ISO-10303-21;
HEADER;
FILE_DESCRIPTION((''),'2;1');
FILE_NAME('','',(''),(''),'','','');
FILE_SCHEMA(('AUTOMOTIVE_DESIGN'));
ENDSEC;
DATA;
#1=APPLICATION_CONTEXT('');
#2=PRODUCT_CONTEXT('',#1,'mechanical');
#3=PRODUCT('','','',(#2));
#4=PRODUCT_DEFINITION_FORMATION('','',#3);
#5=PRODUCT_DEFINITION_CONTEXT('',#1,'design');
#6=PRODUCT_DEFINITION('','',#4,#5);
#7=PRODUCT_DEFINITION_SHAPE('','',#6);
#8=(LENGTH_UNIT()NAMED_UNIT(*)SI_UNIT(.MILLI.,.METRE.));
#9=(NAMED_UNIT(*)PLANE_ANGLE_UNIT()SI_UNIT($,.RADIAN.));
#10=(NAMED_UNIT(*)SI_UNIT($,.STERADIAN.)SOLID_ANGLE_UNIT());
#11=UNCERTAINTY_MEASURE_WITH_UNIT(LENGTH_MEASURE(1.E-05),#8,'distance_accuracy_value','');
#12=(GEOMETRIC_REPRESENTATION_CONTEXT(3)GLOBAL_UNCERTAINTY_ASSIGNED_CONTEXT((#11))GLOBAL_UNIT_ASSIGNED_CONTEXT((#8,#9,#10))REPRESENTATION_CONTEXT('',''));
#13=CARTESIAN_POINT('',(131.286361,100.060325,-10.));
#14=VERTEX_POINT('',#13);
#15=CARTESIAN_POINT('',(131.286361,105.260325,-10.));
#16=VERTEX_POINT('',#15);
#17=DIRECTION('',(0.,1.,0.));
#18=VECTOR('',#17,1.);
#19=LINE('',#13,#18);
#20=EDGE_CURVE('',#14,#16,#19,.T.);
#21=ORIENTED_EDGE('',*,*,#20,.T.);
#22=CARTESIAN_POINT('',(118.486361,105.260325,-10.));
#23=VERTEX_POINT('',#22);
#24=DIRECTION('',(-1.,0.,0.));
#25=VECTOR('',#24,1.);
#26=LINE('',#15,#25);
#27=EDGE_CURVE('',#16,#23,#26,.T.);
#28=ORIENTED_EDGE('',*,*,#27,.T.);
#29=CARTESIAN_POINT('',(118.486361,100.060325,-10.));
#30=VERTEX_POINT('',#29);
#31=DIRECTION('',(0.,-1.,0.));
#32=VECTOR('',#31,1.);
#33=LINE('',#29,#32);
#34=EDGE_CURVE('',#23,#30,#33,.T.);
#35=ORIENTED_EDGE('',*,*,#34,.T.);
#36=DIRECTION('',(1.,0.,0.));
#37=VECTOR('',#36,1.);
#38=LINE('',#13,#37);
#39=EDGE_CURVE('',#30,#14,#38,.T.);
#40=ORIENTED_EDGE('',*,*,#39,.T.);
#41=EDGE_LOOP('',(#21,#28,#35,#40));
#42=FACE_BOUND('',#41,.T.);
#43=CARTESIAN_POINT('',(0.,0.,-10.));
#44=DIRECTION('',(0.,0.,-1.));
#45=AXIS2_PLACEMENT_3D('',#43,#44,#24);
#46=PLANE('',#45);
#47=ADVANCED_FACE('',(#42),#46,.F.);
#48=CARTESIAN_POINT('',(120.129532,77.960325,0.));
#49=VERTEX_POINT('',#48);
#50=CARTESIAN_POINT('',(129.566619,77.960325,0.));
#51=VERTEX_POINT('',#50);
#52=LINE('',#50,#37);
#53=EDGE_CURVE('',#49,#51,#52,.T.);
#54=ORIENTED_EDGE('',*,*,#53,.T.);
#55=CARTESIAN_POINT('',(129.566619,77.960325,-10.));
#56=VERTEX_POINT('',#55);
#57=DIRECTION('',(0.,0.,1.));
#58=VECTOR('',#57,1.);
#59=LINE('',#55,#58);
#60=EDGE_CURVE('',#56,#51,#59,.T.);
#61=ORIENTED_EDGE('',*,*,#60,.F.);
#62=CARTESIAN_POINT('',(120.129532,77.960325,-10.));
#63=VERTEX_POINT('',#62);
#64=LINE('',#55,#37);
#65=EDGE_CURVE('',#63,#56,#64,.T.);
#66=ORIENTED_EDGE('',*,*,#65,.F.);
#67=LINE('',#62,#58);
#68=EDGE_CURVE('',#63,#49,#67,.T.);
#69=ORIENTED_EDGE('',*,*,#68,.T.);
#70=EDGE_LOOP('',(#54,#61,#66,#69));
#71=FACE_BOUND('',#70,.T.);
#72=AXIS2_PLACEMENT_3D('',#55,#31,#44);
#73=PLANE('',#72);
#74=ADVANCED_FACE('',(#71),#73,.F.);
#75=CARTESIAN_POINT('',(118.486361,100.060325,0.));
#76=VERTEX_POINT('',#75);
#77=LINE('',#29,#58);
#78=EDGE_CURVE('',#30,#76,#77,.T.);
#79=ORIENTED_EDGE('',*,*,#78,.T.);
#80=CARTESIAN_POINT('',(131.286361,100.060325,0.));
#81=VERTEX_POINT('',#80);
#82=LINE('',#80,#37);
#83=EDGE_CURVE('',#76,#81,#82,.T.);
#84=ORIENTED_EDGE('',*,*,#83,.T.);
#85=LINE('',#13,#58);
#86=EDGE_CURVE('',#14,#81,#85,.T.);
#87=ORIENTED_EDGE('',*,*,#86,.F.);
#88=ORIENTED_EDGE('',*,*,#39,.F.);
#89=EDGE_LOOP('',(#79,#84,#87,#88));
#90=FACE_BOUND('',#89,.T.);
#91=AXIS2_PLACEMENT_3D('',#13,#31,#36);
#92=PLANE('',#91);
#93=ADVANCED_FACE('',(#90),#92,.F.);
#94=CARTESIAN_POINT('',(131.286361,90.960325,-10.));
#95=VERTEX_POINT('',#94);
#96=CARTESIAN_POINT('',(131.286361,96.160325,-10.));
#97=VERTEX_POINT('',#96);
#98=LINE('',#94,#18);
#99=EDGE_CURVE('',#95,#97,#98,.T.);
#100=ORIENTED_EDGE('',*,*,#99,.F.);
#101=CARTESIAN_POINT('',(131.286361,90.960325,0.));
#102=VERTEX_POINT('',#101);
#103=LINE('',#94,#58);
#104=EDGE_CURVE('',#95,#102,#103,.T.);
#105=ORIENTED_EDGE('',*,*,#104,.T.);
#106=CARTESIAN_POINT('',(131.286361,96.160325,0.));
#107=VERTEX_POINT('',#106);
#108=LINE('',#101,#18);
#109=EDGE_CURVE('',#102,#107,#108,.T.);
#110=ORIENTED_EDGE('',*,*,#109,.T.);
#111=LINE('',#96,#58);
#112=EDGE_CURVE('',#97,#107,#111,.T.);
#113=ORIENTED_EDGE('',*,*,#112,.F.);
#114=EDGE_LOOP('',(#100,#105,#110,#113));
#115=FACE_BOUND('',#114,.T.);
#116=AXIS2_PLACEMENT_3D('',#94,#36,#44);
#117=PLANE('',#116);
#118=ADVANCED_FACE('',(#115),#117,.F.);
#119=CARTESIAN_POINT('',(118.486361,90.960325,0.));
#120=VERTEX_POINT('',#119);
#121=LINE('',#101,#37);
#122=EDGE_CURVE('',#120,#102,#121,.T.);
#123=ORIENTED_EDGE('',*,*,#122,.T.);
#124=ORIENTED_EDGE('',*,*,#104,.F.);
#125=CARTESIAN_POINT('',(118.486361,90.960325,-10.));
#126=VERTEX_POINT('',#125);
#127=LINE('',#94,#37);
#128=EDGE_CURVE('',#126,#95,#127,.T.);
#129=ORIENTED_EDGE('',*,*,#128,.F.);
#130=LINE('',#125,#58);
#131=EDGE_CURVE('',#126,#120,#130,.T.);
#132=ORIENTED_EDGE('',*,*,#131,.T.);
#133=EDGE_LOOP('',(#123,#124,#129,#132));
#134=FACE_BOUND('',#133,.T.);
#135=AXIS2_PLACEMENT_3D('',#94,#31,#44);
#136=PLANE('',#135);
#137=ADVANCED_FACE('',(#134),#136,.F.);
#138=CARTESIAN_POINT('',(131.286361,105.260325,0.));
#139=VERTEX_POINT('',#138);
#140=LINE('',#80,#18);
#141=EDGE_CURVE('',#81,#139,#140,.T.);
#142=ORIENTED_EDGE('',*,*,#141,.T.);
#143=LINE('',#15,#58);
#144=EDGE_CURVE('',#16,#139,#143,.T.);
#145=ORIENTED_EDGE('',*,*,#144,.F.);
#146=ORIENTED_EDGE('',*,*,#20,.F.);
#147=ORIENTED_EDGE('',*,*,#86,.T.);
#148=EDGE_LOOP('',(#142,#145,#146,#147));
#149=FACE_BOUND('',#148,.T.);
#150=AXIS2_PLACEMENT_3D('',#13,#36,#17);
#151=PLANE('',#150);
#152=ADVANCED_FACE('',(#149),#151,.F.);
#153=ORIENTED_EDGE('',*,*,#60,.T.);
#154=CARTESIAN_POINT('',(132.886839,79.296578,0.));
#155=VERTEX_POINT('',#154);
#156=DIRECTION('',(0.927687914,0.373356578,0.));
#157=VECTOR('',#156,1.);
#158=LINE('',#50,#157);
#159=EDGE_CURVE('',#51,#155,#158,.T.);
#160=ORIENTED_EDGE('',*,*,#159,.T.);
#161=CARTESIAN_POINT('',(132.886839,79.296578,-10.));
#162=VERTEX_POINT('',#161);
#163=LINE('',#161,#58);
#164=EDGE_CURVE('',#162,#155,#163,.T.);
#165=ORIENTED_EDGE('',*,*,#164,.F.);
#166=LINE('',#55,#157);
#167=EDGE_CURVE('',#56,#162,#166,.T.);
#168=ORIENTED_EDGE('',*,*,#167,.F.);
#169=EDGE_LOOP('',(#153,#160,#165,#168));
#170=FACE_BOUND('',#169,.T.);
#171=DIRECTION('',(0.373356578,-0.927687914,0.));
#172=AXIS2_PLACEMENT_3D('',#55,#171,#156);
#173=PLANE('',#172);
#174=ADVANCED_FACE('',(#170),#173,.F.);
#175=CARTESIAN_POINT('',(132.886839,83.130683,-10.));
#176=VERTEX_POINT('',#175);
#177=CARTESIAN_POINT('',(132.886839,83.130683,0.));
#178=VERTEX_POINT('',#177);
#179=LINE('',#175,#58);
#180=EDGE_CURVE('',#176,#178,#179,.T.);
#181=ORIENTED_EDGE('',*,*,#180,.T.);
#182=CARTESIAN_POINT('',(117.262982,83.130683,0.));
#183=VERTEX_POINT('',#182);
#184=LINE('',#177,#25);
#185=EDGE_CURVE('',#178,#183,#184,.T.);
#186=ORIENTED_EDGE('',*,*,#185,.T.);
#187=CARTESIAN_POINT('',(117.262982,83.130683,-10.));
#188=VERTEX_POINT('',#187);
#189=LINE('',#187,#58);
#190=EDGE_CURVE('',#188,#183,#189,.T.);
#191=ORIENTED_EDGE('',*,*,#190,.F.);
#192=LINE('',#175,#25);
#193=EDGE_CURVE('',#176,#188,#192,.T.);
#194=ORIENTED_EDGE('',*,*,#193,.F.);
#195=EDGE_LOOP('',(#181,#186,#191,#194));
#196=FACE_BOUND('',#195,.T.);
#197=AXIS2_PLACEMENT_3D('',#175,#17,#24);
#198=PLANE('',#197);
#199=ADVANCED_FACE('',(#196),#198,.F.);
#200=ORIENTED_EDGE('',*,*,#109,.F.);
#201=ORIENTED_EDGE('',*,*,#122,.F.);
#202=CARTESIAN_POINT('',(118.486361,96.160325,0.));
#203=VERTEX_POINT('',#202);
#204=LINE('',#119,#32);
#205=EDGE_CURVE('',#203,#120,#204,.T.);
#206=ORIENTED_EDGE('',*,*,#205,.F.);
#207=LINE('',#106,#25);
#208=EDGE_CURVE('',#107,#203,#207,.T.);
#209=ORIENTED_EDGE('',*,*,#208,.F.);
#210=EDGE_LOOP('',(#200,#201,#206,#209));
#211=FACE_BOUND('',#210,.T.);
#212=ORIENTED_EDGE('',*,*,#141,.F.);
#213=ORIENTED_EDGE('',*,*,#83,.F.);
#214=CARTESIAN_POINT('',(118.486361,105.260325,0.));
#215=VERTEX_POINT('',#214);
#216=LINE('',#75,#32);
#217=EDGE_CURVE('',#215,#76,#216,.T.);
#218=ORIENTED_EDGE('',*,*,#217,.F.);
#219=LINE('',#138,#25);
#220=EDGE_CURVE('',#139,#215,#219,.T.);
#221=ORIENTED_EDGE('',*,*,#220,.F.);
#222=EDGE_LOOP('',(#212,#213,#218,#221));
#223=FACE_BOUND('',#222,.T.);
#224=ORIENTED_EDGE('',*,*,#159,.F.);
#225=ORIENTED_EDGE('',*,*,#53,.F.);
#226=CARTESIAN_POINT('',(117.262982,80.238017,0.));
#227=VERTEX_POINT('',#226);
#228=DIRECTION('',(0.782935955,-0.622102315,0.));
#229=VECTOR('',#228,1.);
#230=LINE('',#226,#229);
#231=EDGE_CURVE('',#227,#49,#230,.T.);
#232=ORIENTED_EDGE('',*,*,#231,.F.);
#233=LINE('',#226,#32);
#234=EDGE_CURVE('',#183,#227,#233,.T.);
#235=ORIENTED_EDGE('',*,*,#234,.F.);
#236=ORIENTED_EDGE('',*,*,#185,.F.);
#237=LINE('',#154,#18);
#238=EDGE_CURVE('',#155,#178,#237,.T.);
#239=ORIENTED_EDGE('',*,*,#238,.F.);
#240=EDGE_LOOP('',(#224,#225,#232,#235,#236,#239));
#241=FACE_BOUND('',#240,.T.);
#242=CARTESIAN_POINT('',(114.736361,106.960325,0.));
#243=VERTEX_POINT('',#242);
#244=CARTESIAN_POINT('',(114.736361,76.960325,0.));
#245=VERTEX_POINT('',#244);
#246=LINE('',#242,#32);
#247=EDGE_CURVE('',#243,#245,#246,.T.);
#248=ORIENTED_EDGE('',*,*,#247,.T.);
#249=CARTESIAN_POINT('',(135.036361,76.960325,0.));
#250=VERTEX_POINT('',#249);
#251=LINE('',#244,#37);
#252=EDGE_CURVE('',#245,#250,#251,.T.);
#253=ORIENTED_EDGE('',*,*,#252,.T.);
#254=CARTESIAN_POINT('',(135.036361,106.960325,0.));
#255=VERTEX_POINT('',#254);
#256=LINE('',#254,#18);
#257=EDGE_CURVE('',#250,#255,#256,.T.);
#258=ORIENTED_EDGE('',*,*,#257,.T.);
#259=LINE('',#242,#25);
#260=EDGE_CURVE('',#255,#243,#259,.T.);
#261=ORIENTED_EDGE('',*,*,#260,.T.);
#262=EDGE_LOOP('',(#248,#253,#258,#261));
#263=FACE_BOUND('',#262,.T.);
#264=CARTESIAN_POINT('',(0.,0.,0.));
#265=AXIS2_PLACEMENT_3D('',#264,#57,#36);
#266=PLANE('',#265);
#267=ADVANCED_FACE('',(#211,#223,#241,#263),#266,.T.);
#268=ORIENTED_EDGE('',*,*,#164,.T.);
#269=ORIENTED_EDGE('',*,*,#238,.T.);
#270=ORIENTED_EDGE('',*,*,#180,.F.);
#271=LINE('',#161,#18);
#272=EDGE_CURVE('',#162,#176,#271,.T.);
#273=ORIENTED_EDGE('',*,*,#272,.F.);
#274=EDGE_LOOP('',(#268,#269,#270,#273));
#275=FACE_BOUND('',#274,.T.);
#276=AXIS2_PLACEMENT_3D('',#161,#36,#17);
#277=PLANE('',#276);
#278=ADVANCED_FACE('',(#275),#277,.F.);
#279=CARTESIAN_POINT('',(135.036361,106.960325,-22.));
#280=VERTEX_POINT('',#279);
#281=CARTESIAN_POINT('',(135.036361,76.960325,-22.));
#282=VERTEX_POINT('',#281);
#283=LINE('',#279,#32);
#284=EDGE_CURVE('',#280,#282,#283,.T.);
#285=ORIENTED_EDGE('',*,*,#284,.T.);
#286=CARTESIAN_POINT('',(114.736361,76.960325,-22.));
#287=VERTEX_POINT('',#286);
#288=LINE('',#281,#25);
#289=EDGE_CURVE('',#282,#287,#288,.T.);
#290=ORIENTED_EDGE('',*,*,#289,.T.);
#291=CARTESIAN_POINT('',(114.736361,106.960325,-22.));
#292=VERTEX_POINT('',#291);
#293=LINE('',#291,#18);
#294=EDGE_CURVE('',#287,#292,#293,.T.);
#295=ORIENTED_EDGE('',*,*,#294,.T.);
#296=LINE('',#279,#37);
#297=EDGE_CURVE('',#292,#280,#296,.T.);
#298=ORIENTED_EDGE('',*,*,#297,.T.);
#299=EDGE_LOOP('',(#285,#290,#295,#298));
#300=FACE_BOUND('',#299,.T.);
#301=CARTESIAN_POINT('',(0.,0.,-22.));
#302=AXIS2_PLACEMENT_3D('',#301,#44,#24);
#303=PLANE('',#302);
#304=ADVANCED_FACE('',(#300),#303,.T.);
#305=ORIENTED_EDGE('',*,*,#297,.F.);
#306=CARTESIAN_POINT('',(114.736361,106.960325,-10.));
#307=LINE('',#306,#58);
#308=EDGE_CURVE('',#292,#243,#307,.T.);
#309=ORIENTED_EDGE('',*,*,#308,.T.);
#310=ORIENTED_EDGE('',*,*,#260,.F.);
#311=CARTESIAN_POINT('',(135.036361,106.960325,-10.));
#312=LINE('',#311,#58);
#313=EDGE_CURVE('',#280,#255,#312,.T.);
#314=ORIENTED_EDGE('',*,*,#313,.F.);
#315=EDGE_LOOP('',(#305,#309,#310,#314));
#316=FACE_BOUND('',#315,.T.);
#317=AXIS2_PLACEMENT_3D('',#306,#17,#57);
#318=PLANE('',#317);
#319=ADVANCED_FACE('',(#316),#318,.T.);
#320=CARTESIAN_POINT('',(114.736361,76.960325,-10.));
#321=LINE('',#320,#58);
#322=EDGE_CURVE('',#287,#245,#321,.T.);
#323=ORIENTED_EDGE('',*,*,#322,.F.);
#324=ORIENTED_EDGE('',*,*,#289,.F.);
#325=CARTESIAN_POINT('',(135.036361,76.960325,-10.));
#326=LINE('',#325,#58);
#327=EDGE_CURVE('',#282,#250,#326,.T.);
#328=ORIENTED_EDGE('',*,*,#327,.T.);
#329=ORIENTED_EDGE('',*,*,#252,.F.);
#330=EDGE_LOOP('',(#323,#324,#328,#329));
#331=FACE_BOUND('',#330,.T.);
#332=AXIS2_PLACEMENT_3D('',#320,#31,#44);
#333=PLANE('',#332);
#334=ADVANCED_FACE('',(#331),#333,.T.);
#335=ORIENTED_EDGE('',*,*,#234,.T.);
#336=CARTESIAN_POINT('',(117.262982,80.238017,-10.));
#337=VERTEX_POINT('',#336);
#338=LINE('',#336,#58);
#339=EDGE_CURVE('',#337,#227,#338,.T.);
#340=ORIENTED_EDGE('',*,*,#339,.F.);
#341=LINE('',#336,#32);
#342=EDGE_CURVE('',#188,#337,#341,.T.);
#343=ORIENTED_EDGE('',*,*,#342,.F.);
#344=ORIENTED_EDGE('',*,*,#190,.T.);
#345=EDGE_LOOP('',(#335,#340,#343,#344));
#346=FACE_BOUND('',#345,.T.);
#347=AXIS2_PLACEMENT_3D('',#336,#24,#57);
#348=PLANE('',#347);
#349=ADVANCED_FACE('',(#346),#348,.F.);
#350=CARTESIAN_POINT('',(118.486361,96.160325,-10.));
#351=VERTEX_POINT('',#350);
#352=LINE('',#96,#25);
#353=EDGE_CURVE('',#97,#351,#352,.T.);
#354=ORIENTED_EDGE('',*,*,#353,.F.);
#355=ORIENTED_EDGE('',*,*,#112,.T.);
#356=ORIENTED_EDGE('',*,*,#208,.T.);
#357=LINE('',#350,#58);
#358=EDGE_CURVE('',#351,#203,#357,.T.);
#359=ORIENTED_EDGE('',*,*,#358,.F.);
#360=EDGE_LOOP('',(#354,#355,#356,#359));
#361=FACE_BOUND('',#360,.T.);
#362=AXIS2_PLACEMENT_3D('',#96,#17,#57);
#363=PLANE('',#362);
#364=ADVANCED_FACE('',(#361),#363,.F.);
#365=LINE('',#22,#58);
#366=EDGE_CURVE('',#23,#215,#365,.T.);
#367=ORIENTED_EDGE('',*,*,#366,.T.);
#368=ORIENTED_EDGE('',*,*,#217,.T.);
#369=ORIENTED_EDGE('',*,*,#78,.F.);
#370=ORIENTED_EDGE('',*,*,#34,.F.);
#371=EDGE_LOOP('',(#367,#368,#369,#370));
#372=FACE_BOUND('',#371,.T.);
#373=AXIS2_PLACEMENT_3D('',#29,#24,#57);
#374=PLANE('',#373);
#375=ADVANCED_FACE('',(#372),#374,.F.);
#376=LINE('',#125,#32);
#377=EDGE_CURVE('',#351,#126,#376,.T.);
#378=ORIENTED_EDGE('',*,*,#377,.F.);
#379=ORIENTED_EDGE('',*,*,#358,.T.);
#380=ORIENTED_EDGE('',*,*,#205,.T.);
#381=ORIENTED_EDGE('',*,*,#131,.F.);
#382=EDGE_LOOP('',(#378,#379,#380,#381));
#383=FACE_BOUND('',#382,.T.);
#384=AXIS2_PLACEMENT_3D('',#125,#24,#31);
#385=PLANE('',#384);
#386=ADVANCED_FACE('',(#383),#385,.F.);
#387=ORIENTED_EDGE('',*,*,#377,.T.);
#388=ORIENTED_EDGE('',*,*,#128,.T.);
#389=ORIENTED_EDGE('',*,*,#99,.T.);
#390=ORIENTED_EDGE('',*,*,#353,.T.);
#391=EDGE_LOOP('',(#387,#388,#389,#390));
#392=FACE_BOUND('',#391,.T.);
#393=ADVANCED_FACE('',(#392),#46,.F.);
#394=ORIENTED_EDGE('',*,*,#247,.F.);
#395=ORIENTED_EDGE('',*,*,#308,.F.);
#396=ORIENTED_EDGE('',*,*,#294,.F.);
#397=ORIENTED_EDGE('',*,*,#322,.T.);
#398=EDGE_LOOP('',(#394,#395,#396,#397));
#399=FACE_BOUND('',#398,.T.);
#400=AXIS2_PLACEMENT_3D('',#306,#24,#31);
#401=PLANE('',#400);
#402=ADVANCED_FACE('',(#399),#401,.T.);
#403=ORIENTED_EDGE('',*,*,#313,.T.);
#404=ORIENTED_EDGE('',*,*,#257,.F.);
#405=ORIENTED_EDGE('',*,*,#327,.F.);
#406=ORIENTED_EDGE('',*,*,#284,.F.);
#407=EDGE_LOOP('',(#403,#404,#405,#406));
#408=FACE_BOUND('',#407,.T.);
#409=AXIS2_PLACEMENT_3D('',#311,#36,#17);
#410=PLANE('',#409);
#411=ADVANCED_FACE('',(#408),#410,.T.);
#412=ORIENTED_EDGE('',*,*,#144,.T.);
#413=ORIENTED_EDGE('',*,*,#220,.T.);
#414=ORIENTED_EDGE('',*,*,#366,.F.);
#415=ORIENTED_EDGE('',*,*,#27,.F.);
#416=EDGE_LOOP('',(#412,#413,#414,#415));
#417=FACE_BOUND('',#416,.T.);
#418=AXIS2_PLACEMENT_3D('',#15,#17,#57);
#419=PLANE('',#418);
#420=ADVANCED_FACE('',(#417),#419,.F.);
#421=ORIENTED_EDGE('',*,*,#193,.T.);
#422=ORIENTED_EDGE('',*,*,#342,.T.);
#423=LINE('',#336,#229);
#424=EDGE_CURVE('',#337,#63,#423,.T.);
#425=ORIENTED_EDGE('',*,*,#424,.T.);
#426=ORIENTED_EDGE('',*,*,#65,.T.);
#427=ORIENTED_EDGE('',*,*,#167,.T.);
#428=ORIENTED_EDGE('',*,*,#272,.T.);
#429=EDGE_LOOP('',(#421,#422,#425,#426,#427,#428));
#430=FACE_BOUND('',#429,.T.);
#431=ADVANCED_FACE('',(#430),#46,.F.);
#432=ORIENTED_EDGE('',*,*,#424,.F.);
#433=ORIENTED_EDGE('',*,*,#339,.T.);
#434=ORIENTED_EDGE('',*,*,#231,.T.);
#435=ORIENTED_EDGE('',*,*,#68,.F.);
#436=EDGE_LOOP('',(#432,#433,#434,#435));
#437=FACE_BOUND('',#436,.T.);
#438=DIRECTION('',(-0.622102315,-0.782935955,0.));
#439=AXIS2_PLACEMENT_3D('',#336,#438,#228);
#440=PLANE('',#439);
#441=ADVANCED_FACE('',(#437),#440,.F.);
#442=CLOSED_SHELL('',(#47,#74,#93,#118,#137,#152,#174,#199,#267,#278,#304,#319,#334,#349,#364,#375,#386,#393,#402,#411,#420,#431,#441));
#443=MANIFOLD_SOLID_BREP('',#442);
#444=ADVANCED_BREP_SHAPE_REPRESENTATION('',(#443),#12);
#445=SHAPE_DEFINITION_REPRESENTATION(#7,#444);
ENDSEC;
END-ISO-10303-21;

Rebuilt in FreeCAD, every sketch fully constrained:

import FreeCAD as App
import Part
import Sketcher
Q = App.Units.Quantity


def add_polygon(sketch, points):
    """Adds a closed chain of lines whose ends are joined by coincident constraints."""
    first, n = sketch.GeometryCount, len(points)
    for a, b in zip(points, points[1:] + points[:1]):
        sketch.addGeometry(Part.LineSegment(App.Vector(*a, 0), App.Vector(*b, 0)), False)
    for i in range(n):
        sketch.addConstraint(Sketcher.Constraint("Coincident", first + i, 2, first + (i + 1) % n, 1))

doc = App.newDocument("Part")
body = doc.addObject("PartDesign::Body", "Body")

# Sketch on XY plane
sketch1 = body.newObject("Sketcher::SketchObject", "Sketch")
sketch1.AttachmentSupport = (doc.getObject("XY_Plane"), [""])
sketch1.MapMode = "FlatFace"
add_polygon(sketch1, [(114.736361, 106.960325), (114.736361, 76.960325), (135.036361, 76.960325), (135.036361, 106.960325)])  # lines 0-3
add_polygon(sketch1, [(132.886839, 79.296578), (129.566619, 77.960325), (120.129532, 77.960325), (117.262982, 80.238017), (117.262982, 83.130683), (132.886839, 83.130683)])  # lines 4-9
add_polygon(sketch1, [(131.286361, 90.960325), (118.486361, 90.960325), (118.486361, 96.160325), (131.286361, 96.160325)])  # lines 10-13
add_polygon(sketch1, [(131.286361, 100.060325), (118.486361, 100.060325), (118.486361, 105.260325), (131.286361, 105.260325)])  # lines 14-17
sketch1.addConstraint([
    Sketcher.Constraint("Vertical", 0),
    Sketcher.Constraint("Horizontal", 1),
    Sketcher.Constraint("Vertical", 2),
    Sketcher.Constraint("Horizontal", 3),
    Sketcher.Constraint("Horizontal", 5),
    Sketcher.Constraint("Vertical", 7),
    Sketcher.Constraint("Horizontal", 8),
    Sketcher.Constraint("Vertical", 9),
    Sketcher.Constraint("Horizontal", 10),
    Sketcher.Constraint("Vertical", 11),
    Sketcher.Constraint("Horizontal", 12),
    Sketcher.Constraint("Vertical", 13),
    Sketcher.Constraint("Horizontal", 14),
    Sketcher.Constraint("Vertical", 15),
    Sketcher.Constraint("Horizontal", 16),
    Sketcher.Constraint("Vertical", 17),
    Sketcher.Constraint("Vertical", 11, 2, 14, 2),
    Sketcher.Constraint("Vertical", 13, 2, 16, 2),
    Sketcher.Constraint("Equal", 13, 15),
    Sketcher.Constraint("DistanceY", 0, 2, 0, 1, Q("30 mm")),
    Sketcher.Constraint("DistanceX", 1, 1, 1, 2, Q("20.3 mm")),
    Sketcher.Constraint("DistanceX", 10, 2, 10, 1, Q("12.8 mm")),
    Sketcher.Constraint("DistanceY", 11, 1, 11, 2, Q("5.2 mm")),
    Sketcher.Constraint("DistanceY", 1, 2, 4, 2, Q("1 mm")),
    Sketcher.Constraint("DistanceY", 5, 2, 10, 2, Q("13 mm")),
    Sketcher.Constraint("DistanceY", 11, 2, 14, 2, Q("3.9 mm")),
    Sketcher.Constraint("DistanceX", 0, 2, 10, 2, Q("3.75 mm")),
    Sketcher.Constraint("DistanceX", 5, 2, 5, 1, Q("9.437087 mm")),
    Sketcher.Constraint("DistanceX", 8, 1, 8, 2, Q("15.623857 mm")),
    Sketcher.Constraint("DistanceY", 7, 1, 7, 2, Q("2.892665 mm")),
    Sketcher.Constraint("DistanceY", 9, 2, 9, 1, Q("3.834104 mm")),
    Sketcher.Constraint("DistanceX", -1, 1, 0, 2, Q("114.736361 mm")),
    Sketcher.Constraint("DistanceX", -1, 1, 4, 2, Q("129.566619 mm")),
    Sketcher.Constraint("DistanceX", -1, 1, 6, 2, Q("117.262982 mm")),
    Sketcher.Constraint("DistanceY", -1, 1, 9, 2, Q("79.296578 mm")),
    Sketcher.Constraint("Distance", 4, Q("3.579028 mm")),
])
pad1 = body.newObject("PartDesign::Pad", "Pad")
pad1.Profile = sketch1
pad1.Length = 10
pad1.Reversed = True

# Sketch on XY plane
sketch2 = body.newObject("Sketcher::SketchObject", "Sketch001")
sketch2.AttachmentSupport = (doc.getObject("XY_Plane"), [""])
sketch2.MapMode = "FlatFace"
sketch2.AttachmentOffset = App.Placement(App.Vector(0, 0, -10), App.Rotation())
add_polygon(sketch2, [(135.036361, 106.960325), (135.036361, 76.960325), (114.736361, 76.960325), (114.736361, 106.960325)])  # lines 0-3
sketch2.addConstraint([
    Sketcher.Constraint("Vertical", 0),
    Sketcher.Constraint("Horizontal", 1),
    Sketcher.Constraint("Vertical", 2),
    Sketcher.Constraint("Horizontal", 3),
    Sketcher.Constraint("DistanceY", 0, 2, 0, 1, Q("30 mm")),
    Sketcher.Constraint("DistanceX", 1, 2, 1, 1, Q("20.3 mm")),
    Sketcher.Constraint("DistanceX", -1, 1, 0, 2, Q("135.036361 mm")),
    Sketcher.Constraint("DistanceY", -1, 1, 0, 2, Q("76.960325 mm")),
])
pad2 = body.newObject("PartDesign::Pad", "Pad001")
pad2.Profile = sketch2
pad2.Length = 12
pad2.Reversed = True

doc.recompute()
